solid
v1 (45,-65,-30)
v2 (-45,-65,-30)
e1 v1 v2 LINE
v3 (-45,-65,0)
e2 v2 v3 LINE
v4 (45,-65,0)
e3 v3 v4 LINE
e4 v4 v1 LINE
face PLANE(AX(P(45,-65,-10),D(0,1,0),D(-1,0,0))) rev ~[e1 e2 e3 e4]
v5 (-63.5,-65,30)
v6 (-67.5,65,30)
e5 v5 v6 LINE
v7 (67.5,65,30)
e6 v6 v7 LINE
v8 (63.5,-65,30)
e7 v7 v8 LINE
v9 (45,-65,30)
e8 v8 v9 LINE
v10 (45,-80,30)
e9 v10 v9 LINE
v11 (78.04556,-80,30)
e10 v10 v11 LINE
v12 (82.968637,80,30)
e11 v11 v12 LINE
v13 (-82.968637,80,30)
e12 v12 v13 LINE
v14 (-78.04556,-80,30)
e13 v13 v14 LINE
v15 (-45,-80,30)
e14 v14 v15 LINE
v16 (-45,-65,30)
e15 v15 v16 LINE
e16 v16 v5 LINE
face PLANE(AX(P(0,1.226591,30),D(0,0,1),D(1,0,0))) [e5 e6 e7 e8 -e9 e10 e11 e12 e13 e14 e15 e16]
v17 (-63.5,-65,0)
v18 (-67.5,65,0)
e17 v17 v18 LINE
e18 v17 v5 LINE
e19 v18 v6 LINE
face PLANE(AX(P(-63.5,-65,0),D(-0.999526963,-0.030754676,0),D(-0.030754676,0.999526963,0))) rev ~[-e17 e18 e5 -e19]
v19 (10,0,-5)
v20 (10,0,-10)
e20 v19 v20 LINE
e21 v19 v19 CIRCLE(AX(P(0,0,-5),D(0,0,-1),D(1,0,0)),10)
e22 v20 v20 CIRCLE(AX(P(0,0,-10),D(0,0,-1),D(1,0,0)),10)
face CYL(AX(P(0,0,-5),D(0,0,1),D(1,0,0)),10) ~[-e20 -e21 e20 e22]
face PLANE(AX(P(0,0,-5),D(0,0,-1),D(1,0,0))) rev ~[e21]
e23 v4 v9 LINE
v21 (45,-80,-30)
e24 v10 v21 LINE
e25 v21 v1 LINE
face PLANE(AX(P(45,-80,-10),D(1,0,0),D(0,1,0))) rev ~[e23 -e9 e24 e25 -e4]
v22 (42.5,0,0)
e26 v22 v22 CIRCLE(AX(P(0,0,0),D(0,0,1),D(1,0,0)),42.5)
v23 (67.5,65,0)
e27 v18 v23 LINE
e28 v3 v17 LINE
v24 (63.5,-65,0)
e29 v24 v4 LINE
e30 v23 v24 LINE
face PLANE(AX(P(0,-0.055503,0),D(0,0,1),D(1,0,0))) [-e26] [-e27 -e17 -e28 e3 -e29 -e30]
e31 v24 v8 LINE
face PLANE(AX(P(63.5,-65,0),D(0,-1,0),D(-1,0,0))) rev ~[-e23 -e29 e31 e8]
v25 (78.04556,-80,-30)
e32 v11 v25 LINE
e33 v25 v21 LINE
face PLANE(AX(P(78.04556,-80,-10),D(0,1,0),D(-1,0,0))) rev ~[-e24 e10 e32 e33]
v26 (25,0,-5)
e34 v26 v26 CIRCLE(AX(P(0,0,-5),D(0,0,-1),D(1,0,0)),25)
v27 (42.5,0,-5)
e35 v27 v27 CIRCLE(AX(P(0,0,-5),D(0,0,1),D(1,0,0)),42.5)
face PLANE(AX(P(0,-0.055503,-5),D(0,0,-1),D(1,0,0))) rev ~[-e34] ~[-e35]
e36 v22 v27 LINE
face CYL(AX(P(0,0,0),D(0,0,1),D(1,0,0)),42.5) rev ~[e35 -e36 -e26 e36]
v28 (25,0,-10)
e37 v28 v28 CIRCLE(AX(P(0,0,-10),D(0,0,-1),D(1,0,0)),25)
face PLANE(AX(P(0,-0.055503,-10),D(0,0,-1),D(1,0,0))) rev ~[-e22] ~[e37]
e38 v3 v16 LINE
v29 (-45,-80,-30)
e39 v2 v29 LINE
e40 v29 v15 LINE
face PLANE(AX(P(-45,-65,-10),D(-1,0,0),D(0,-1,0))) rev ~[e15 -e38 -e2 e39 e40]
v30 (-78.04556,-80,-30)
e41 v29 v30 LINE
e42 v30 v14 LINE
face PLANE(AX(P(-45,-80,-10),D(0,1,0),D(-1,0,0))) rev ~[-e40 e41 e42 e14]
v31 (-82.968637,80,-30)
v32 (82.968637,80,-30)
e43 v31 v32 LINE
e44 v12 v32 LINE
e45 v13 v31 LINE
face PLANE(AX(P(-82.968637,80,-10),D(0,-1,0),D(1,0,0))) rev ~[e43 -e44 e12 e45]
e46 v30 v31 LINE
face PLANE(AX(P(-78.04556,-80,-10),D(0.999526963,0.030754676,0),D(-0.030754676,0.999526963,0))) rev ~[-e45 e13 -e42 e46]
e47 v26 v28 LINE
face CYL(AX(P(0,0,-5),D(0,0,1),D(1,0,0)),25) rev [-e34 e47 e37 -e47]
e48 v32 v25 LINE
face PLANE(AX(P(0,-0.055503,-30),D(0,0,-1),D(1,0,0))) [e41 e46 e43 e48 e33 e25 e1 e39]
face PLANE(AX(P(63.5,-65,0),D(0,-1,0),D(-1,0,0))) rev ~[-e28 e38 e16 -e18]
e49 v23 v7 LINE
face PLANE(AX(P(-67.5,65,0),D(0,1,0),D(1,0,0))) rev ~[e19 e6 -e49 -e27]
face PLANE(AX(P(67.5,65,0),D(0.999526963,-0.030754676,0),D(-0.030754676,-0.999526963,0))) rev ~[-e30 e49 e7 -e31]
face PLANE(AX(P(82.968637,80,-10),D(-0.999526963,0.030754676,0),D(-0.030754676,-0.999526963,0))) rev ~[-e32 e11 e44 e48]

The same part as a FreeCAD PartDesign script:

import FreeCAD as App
import Part
import Sketcher

V = App.Vector


def add_polygon(sketch, points):
    """Adds a closed chain of lines whose ends are joined by coincident constraints."""
    first, n = sketch.GeometryCount, len(points)
    for a, b in zip(points, points[1:] + points[:1]):
        sketch.addGeometry(Part.LineSegment(App.Vector(*a, 0), App.Vector(*b, 0)), False)
    for i in range(n):
        sketch.addConstraint(Sketcher.Constraint("Coincident", first + i, 2, first + (i + 1) % n, 1))

doc = App.newDocument("Part")
body = doc.addObject("PartDesign::Body", "Body")

# Sketch on XY plane
sketch1 = doc.addObject("Sketcher::SketchObject", "Sketch")
body.addObject(sketch1)
sketch1.AttachmentSupport = (doc.XY_Plane, [""])
sketch1.MapMode = "FlatFace"
add_polygon(sketch1, [(83, 80), (-83, 80), (-78, -80), (78, -80)])  # lines 0-3
add_polygon(sketch1, [(64, -65), (-64, -65), (-68, 65), (68, 65)])  # lines 4-7
sketch1.addConstraint([
    Sketcher.Constraint("Horizontal", 0),
    Sketcher.Constraint("Horizontal", 2),
    Sketcher.Constraint("Horizontal", 4),
    Sketcher.Constraint("Horizontal", 6),
    Sketcher.Constraint("Parallel", 1, 5),
    Sketcher.Constraint("Parallel", 3, 7),
    Sketcher.Constraint("Equal", 1, 3),
    Sketcher.Constraint("DistanceX", 4, 2, 4, 1, 127.0),
    Sketcher.Constraint("DistanceX", 6, 1, 6, 2, 135.0),
    Sketcher.Constraint("DistanceY", -1, 1, 0, 2, 80.0),
    Sketcher.Constraint("DistanceY", 1, 2, -1, 1, 80.0),
    Sketcher.Constraint("DistanceY", 4, 2, -1, 1, 65.0),
    Sketcher.Constraint("DistanceY", -1, 1, 5, 2, 65.0),
    Sketcher.Constraint("DistanceX", 4, 2, -1, 1, 63.5),
    Sketcher.Constraint("DistanceX", 2, 1, 2, 2, 156.09112),
    Sketcher.Constraint("DistanceX", 1, 2, -1, 1, 78.04556),
])
pad1 = doc.addObject("PartDesign::Pad", "Pad")
body.addObject(pad1)
pad1.Profile = sketch1
pad1.Length = 30

# Sketch on XZ plane
sketch2 = doc.addObject("Sketcher::SketchObject", "Sketch001")
body.addObject(sketch2)
sketch2.AttachmentSupport = (doc.XZ_Plane, [""])
sketch2.MapMode = "FlatFace"
sketch2.AttachmentOffset = App.Placement(V(0, 0, 80), App.Rotation())
add_polygon(sketch2, [(-45, 30), (-45, 0), (45, 0), (45, 30)])  # lines 0-3
sketch2.addConstraint([
    Sketcher.Constraint("Vertical", 0),
    Sketcher.Constraint("Horizontal", 1),
    Sketcher.Constraint("Vertical", 2),
    Sketcher.Constraint("Horizontal", 3),
    Sketcher.Constraint("Symmetric", 0, 2, 1, 2, -1, 1),
    Sketcher.Constraint("DistanceX", 1, 1, 1, 2, 90.0),
    Sketcher.Constraint("DistanceY", 0, 2, 0, 1, 30.0),
])
pocket1 = doc.addObject("PartDesign::Pocket", "Pocket")
body.addObject(pocket1)
pocket1.Profile = sketch2
pocket1.Length = 15

# Sketch on XY plane
sketch3 = doc.addObject("Sketcher::SketchObject", "Sketch002")
body.addObject(sketch3)
sketch3.AttachmentSupport = (doc.XY_Plane, [""])
sketch3.MapMode = "FlatFace"
add_polygon(sketch3, [(83, 80), (-83, 80), (-78, -80), (-45, -80), (-45, -65), (45, -65), (45, -80), (78, -80)])  # lines 0-7
sketch3.addGeometry(Part.Circle(V(0, 0, 0), V(0, 0, 1), 42), False)  # 8
sketch3.addConstraint([
    Sketcher.Constraint("Horizontal", 0),
    Sketcher.Constraint("Horizontal", 2),
    Sketcher.Constraint("Vertical", 3),
    Sketcher.Constraint("Horizontal", 4),
    Sketcher.Constraint("Vertical", 5),
    Sketcher.Constraint("Horizontal", 6),
    Sketcher.Constraint("Coincident", 8, 3, -1, 1),
    Sketcher.Constraint("Symmetric", 2, 2, 5, 2, -2),
    Sketcher.Constraint("Equal", 2, 6),
    Sketcher.Constraint("Equal", 1, 7),
    Sketcher.Constraint("Diameter", 8, 85.0),
    Sketcher.Constraint("DistanceX", 4, 1, 4, 2, 90.0),
    Sketcher.Constraint("DistanceY", 3, 1, 3, 2, 15.0),
    Sketcher.Constraint("DistanceY", -1, 1, 0, 2, 80.0),
    Sketcher.Constraint("DistanceY", 1, 2, -1, 1, 80.0),
    Sketcher.Constraint("DistanceX", 2, 1, 2, 2, 33.04556),
    Sketcher.Constraint("Distance", 1, 160.075722),
])
pad2 = doc.addObject("PartDesign::Pad", "Pad001")
body.addObject(pad2)
pad2.Profile = sketch3
pad2.Length = 5
pad2.Reversed = True

# Sketch on XY plane
sketch4 = doc.addObject("Sketcher::SketchObject", "Sketch003")
body.addObject(sketch4)
sketch4.AttachmentSupport = (doc.XY_Plane, [""])
sketch4.MapMode = "FlatFace"
sketch4.AttachmentOffset = App.Placement(V(0, 0, -5), App.Rotation())
add_polygon(sketch4, [(-45, -80), (-78, -80), (-83, 80), (83, 80), (78, -80), (45, -80), (45, -65), (-45, -65)])  # lines 0-7
sketch4.addGeometry(Part.Circle(V(0, 0, 0), V(0, 0, 1), 25), False)  # 8
sketch4.addConstraint([
    Sketcher.Constraint("Horizontal", 0),
    Sketcher.Constraint("Horizontal", 2),
    Sketcher.Constraint("Horizontal", 4),
    Sketcher.Constraint("Vertical", 5),
    Sketcher.Constraint("Horizontal", 6),
    Sketcher.Constraint("Vertical", 7),
    Sketcher.Constraint("Coincident", 8, 3, -1, 1),
    Sketcher.Constraint("Symmetric", 0, 2, 3, 2, -2),
    Sketcher.Constraint("Equal", 0, 4),
    Sketcher.Constraint("Equal", 1, 3),
    Sketcher.Constraint("Diameter", 8, 50.0),
    Sketcher.Constraint("DistanceX", 6, 2, 6, 1, 90.0),
    Sketcher.Constraint("DistanceY", 5, 1, 5, 2, 15.0),
    Sketcher.Constraint("DistanceY", 0, 2, -1, 1, 80.0),
    Sketcher.Constraint("DistanceY", -1, 1, 1, 2, 80.0),
    Sketcher.Constraint("DistanceX", 0, 2, 0, 1, 33.04556),
    Sketcher.Constraint("Distance", 1, 160.075722),
])
pad3 = doc.addObject("PartDesign::Pad", "Pad002")
body.addObject(pad3)
pad3.Profile = sketch4
pad3.Length = 5
pad3.Reversed = True
body2 = doc.addObject("PartDesign::Body", "Body001")

# Sketch on XY plane
sketch5 = doc.addObject("Sketcher::SketchObject", "Sketch004")
body2.addObject(sketch5)
sketch5.AttachmentSupport = (doc.getObject("XY_Plane001"), [""])
sketch5.MapMode = "FlatFace"
sketch5.AttachmentOffset = App.Placement(V(0, 0, -5), App.Rotation())
sketch5.addGeometry(Part.Circle(V(0, 0, 0), V(0, 0, 1), 10), False)
sketch5.addConstraint([
    Sketcher.Constraint("Coincident", 0, 3, -1, 1),
    Sketcher.Constraint("Diameter", 0, 20.0),
])
pad4 = doc.addObject("PartDesign::Pad", "Pad003")
body2.addObject(pad4)
pad4.Profile = sketch5
pad4.Length = 5
pad4.Reversed = True
body.AllowCompound = True
doc.recompute()

boolean = doc.addObject("PartDesign::Boolean", "Boolean")
body.addObject(boolean)
boolean.Type = "Fuse"
boolean.addObjects([body2])

# Sketch on XY plane
sketch6 = doc.addObject("Sketcher::SketchObject", "Sketch005")
body.addObject(sketch6)
sketch6.AttachmentSupport = (doc.XY_Plane, [""])
sketch6.MapMode = "FlatFace"
sketch6.AttachmentOffset = App.Placement(V(0, 0, -10), App.Rotation())
add_polygon(sketch6, [(-78, -80), (-83, 80), (83, 80), (78, -80), (45, -80), (45, -65), (-45, -65), (-45, -80)])  # lines 0-7
sketch6.addConstraint([
    Sketcher.Constraint("Horizontal", 1),
    Sketcher.Constraint("Horizontal", 3),
    Sketcher.Constraint("Vertical", 4),
    Sketcher.Constraint("Horizontal", 5),
    Sketcher.Constraint("Vertical", 6),
    Sketcher.Constraint("Horizontal", 7),
    Sketcher.Constraint("Symmetric", 3, 2, 6, 2, -2),
    Sketcher.Constraint("Equal", 3, 7),
    Sketcher.Constraint("Equal", 0, 2),
    Sketcher.Constraint("DistanceX", 5, 2, 5, 1, 90.0),
    Sketcher.Constraint("DistanceY", 4, 1, 4, 2, 15.0),
    Sketcher.Constraint("DistanceY", -1, 1, 0, 2, 80.0),
    Sketcher.Constraint("DistanceY", 2, 2, -1, 1, 80.0),
    Sketcher.Constraint("DistanceX", 3, 2, 3, 1, 33.04556),
    Sketcher.Constraint("Distance", 0, 160.075722),
])
pad5 = doc.addObject("PartDesign::Pad", "Pad004")
body.addObject(pad5)
pad5.Profile = sketch6
pad5.Length = 20
pad5.Reversed = True

doc.recompute()
